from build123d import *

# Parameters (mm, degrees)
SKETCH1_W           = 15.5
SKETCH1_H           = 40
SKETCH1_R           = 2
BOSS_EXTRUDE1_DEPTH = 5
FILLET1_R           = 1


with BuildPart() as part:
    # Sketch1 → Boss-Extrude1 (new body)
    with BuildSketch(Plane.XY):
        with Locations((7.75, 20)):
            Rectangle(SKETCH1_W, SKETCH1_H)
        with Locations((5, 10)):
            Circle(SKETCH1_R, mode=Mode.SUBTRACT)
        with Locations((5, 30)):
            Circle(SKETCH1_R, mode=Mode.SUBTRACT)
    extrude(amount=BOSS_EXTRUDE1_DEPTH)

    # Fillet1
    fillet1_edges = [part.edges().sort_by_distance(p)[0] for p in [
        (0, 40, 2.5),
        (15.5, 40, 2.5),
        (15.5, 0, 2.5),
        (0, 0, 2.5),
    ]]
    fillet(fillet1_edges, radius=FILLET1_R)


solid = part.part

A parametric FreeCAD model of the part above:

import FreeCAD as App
import Part
import Sketcher

V = App.Vector


def edges_at(feature, points):
    """Names of the edges that pass closest to the given points."""
    edges = feature.Shape.Edges
    near = lambda p: min(range(len(edges)), key=lambda i: edges[i].distToShape(Part.Vertex(*p))[0])
    return sorted({f"Edge{near(p) + 1}" for p in points})

doc = App.newDocument("Part")
params = doc.addObject("Spreadsheet::Sheet", "Params")
for row, (alias, value) in enumerate([
    ("sketch1_diameter", "4 mm"),
    ("sketch1_height", "40 mm"),
    ("sketch1_width", "15.5 mm"),
    ("pad1_length", "5 mm"),
    ("fillet_radius", "1 mm"),
], start=1):
    params.set(f"A{row}", alias)
    params.set(f"B{row}", "=" + value)
    params.setAlias(f"B{row}", alias)

body = doc.addObject("PartDesign::Body", "Body")

# Sketch on XY plane
sketch1 = doc.addObject("Sketcher::SketchObject", "Sketch")
body.addObject(sketch1)
sketch1.AttachmentSupport = (doc.XY_Plane, [""])
sketch1.MapMode = "FlatFace"
sketch1.addGeometry([
    Part.LineSegment(V(0, 40, 0), V(0, 0, 0)),  # 0
    Part.LineSegment(V(0, 0, 0), V(15.5, 0, 0)),  # 1
    Part.LineSegment(V(15.5, 0, 0), V(15.5, 40, 0)),  # 2
    Part.LineSegment(V(15.5, 40, 0), V(0, 40, 0)),  # 3
    Part.Circle(V(5, 10, 0), V(0, 0, 1), 2),  # 4
    Part.Circle(V(5, 30, 0), V(0, 0, 1), 2),  # 5
], False)
sketch1.addConstraint([
    Sketcher.Constraint("Coincident", 0, 2, 1, 1),
    Sketcher.Constraint("Coincident", 1, 2, 2, 1),
    Sketcher.Constraint("Coincident", 2, 2, 3, 1),
    Sketcher.Constraint("Coincident", 3, 2, 0, 1),
    Sketcher.Constraint("Vertical", 0),
    Sketcher.Constraint("Horizontal", 1),
    Sketcher.Constraint("Vertical", 2),
    Sketcher.Constraint("Horizontal", 3),
    Sketcher.Constraint("Coincident", 0, 2, -1, 1),
    Sketcher.Constraint("Equal", 4, 5),
    Sketcher.Constraint("Vertical", 4, 3, 5, 3),
    Sketcher.Constraint("Diameter", 4, 4.0),
    Sketcher.Constraint("DistanceY", 0, 2, 0, 1, 40.0),
    Sketcher.Constraint("DistanceX", 1, 1, 1, 2, 15.5),
    Sketcher.Constraint("DistanceX", -1, 1, 4, 3, 5.0),
    Sketcher.Constraint("DistanceY", -1, 1, 4, 3, 10.0),
    Sketcher.Constraint("DistanceY", -1, 1, 5, 3, 30.0),
])
sketch1.setExpression("Constraints[11]", "Params.sketch1_diameter")
sketch1.setExpression("Constraints[12]", "Params.sketch1_height")
sketch1.setExpression("Constraints[13]", "Params.sketch1_width")
pad1 = doc.addObject("PartDesign::Pad", "Pad")
body.addObject(pad1)
pad1.Profile = sketch1
pad1.setExpression("Length", "Params.pad1_length")
doc.recompute()

fillet = doc.addObject("PartDesign::Fillet", "Fillet")
body.addObject(fillet)
fillet.Base = (pad1, edges_at(pad1, [
    (0, 40, 2.5),
    (15.5, 40, 2.5),
    (15.5, 0, 2.5),
    (0, 0, 2.5),
]))
fillet.setExpression("Radius", "Params.fillet_radius")

doc.recompute()
